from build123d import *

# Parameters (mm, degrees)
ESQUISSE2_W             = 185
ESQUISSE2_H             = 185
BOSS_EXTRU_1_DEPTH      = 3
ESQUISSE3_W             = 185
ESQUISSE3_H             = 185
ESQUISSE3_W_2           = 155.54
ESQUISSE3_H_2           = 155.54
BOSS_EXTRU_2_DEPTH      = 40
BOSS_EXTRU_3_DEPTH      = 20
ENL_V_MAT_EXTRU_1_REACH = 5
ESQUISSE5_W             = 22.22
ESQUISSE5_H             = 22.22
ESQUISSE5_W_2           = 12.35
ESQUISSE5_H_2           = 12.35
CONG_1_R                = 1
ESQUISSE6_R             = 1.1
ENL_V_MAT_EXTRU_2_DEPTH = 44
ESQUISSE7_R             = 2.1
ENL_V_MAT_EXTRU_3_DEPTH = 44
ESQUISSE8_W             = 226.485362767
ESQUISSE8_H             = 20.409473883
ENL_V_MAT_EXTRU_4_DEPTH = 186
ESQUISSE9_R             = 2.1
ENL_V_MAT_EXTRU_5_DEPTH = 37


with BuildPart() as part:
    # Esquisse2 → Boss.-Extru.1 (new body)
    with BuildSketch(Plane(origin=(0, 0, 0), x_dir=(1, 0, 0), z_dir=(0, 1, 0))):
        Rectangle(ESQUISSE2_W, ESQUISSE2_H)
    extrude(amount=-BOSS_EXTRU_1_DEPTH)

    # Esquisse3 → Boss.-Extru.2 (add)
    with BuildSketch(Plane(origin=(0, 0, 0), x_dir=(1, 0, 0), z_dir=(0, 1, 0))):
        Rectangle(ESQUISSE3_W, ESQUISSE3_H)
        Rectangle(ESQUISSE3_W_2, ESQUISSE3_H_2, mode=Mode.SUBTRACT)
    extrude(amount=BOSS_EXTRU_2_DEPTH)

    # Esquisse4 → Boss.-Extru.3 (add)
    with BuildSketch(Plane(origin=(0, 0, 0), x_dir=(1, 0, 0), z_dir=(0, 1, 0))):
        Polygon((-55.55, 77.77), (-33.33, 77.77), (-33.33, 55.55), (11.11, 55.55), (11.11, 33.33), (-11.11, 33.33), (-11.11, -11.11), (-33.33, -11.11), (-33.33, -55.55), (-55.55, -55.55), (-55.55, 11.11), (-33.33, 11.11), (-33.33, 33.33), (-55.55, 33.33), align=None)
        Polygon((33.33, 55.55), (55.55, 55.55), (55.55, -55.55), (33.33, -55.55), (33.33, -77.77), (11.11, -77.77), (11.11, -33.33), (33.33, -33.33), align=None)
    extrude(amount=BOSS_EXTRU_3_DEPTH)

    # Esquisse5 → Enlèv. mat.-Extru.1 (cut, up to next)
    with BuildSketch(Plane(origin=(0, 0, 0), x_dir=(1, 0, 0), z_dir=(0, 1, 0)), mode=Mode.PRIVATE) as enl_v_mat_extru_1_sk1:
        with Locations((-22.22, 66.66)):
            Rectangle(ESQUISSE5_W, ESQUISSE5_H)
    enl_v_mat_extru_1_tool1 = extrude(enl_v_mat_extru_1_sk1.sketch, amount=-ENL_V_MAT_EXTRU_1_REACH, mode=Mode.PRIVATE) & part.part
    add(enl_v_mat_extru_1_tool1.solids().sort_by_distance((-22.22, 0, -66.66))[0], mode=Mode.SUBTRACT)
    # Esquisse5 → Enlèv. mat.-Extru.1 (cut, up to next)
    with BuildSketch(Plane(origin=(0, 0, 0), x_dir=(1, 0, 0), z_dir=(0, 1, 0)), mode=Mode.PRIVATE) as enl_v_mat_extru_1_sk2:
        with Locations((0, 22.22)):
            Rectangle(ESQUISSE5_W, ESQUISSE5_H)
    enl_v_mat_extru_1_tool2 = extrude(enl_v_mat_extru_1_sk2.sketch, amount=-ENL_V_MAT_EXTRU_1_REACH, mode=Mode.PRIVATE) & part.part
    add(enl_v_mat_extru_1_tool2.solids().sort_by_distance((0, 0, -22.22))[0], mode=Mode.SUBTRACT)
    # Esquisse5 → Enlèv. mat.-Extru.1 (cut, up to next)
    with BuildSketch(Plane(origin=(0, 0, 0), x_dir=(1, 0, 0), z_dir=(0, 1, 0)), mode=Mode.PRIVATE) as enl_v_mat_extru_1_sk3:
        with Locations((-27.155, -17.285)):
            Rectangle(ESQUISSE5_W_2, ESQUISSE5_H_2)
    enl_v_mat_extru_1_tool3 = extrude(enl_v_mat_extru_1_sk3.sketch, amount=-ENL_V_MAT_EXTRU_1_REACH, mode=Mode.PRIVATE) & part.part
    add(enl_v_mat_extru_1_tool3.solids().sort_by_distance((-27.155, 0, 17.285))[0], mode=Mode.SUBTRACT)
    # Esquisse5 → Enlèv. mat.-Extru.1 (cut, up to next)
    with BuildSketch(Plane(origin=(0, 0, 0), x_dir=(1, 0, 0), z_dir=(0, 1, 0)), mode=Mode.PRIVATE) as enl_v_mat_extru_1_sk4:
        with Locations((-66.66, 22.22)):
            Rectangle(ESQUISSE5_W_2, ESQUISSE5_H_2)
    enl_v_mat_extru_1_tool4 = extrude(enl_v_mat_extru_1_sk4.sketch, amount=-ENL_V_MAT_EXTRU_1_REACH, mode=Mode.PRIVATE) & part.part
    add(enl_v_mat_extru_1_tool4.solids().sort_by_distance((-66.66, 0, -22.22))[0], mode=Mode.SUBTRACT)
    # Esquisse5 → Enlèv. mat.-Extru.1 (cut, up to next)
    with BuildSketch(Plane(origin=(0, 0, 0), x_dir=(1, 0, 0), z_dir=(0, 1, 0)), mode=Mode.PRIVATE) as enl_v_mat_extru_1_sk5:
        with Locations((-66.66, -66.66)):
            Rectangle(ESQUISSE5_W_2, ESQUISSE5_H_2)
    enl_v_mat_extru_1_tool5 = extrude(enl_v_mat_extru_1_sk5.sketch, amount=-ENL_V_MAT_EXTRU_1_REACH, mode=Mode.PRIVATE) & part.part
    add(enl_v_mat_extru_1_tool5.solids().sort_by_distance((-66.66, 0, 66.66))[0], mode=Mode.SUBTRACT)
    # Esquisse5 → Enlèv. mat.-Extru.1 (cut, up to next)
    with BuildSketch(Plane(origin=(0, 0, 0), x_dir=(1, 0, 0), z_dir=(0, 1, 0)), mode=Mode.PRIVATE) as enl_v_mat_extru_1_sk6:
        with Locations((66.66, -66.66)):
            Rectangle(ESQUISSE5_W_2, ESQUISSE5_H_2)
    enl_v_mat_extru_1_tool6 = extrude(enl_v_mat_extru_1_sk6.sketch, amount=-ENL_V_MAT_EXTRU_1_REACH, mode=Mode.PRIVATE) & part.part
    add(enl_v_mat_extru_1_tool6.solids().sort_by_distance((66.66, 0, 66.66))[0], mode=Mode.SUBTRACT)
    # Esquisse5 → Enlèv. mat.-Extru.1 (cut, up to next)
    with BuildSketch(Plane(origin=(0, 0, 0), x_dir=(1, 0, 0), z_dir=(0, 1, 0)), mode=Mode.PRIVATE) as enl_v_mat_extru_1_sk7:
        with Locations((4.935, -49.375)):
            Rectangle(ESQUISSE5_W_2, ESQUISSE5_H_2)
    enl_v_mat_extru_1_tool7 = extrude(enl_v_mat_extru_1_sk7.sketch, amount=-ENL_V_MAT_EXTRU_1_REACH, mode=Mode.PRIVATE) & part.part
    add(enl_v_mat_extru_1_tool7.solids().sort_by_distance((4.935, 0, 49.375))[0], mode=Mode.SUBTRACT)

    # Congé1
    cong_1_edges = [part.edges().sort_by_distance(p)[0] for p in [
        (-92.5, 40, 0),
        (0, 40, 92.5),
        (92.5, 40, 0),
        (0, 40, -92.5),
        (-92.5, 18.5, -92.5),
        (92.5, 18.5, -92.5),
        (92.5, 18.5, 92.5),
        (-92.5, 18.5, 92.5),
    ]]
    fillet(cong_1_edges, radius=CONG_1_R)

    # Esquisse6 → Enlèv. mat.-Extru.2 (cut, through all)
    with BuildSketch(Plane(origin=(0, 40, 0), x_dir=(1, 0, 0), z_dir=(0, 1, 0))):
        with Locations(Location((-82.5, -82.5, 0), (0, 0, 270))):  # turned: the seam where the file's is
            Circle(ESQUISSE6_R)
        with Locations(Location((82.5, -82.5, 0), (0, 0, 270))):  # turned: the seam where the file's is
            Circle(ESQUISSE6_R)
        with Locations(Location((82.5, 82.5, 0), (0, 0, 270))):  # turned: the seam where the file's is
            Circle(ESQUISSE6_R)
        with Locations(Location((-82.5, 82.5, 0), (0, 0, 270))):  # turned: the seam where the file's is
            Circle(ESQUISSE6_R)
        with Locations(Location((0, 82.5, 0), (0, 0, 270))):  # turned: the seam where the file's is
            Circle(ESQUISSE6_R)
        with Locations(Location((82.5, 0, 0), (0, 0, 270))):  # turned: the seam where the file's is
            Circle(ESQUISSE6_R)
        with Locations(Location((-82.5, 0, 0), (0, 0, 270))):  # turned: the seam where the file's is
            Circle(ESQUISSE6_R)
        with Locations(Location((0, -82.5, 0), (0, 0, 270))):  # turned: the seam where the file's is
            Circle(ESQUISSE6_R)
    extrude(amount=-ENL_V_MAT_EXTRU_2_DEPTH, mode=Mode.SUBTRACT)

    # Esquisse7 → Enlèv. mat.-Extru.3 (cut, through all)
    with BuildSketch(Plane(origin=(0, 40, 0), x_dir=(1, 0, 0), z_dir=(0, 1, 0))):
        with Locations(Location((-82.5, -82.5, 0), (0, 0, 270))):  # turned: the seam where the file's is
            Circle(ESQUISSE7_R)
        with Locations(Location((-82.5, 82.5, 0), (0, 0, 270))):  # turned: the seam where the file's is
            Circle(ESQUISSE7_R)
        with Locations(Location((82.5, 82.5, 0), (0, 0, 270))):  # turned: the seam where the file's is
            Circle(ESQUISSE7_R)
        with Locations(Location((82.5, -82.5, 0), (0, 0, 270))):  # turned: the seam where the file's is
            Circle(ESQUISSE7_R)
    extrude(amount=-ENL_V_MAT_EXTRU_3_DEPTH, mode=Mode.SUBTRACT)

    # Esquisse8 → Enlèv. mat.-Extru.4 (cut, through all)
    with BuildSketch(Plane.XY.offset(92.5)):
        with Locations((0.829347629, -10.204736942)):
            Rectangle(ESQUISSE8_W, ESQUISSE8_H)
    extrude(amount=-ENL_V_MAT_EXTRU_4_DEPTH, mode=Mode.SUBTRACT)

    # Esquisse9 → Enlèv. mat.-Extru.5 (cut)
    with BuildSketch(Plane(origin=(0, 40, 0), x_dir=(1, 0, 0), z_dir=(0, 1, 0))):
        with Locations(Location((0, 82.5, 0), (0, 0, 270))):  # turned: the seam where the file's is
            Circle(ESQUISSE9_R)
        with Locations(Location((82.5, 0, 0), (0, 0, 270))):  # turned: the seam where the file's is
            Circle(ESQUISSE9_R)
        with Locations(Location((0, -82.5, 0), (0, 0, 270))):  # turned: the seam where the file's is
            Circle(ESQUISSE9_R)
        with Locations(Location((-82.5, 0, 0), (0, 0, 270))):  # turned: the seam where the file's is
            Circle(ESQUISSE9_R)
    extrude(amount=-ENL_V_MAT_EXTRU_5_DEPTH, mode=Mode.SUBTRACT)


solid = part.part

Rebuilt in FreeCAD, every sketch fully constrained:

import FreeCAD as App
import Part
import Sketcher


def edges_at(feature, points):
    """Names of the edges that pass closest to the given points."""
    edges = feature.Shape.Edges
    near = lambda p: min(range(len(edges)), key=lambda i: edges[i].distToShape(Part.Vertex(*p))[0])
    return sorted({f"Edge{near(p) + 1}" for p in points})


def add_polygon(sketch, points):
    """Adds a closed chain of lines whose ends are joined by coincident constraints."""
    first, n = sketch.GeometryCount, len(points)
    for a, b in zip(points, points[1:] + points[:1]):
        sketch.addGeometry(Part.LineSegment(App.Vector(*a, 0), App.Vector(*b, 0)), False)
    for i in range(n):
        sketch.addConstraint(Sketcher.Constraint("Coincident", first + i, 2, first + (i + 1) % n, 1))

doc = App.newDocument("Part")
body = doc.addObject("PartDesign::Body", "Body")

sketch1 = doc.addObject("Sketcher::SketchObject", "Sketch")
body.addObject(sketch1)
sketch1.AttachmentSupport = (doc.XZ_Plane, [""])
sketch1.MapMode = "FlatFace"
add_polygon(sketch1, [(-92, -92), (-92, 92), (92, 92), (92, -92)])
sketch1.addConstraint([
    Sketcher.Constraint("Vertical", 0),
    Sketcher.Constraint("Horizontal", 1),
    Sketcher.Constraint("Vertical", 2),
    Sketcher.Constraint("Horizontal", 3),
    Sketcher.Constraint("Symmetric", 0, 2, 2, 2, -1, 1),
    Sketcher.Constraint("Equal", 3, 0),
    Sketcher.Constraint("DistanceX", 1, 1, 1, 2, 185.0),
])
pad1 = doc.addObject("PartDesign::Pad", "Pad")
body.addObject(pad1)
pad1.Profile = sketch1
pad1.Length = 3

sketch2 = doc.addObject("Sketcher::SketchObject", "Sketch001")
body.addObject(sketch2)
sketch2.AttachmentSupport = (doc.XZ_Plane, [""])
sketch2.MapMode = "FlatFace"
add_polygon(sketch2, [(-92, -92), (-92, 92), (92, 92), (92, -92)])
add_polygon(sketch2, [(78, 78), (-78, 78), (-78, -78), (78, -78)])
sketch2.addConstraint([
    Sketcher.Constraint("Vertical", 0),
    Sketcher.Constraint("Horizontal", 1),
    Sketcher.Constraint("Vertical", 2),
    Sketcher.Constraint("Horizontal", 3),
    Sketcher.Constraint("Horizontal", 4),
    Sketcher.Constraint("Vertical", 5),
    Sketcher.Constraint("Horizontal", 6),
    Sketcher.Constraint("Vertical", 7),
    Sketcher.Constraint("Symmetric", 0, 2, 2, 2, -1, 1),
    Sketcher.Constraint("Symmetric", 4, 2, 6, 2, -1, 1),
    Sketcher.Constraint("Equal", 3, 0),
    Sketcher.Constraint("Equal", 6, 5),
    Sketcher.Constraint("DistanceX", 1, 1, 1, 2, 185.0),
    Sketcher.Constraint("DistanceX", 4, 2, 4, 1, 155.54),
])
pad2 = doc.addObject("PartDesign::Pad", "Pad001")
body.addObject(pad2)
pad2.Profile = sketch2
pad2.Length = 40
pad2.Reversed = True

sketch3 = doc.addObject("Sketcher::SketchObject", "Sketch002")
body.addObject(sketch3)
sketch3.AttachmentSupport = (doc.XZ_Plane, [""])
sketch3.MapMode = "FlatFace"
add_polygon(sketch3, [(-33, -78), (-56, -78), (-56, -33), (-33, -33), (-33, -11), (-56, -11), (-56, 56), (-33, 56), (-33, 11), (-11, 11), (-11, -33), (11, -33), (11, -56), (-33, -56)])
add_polygon(sketch3, [(56, -56), (33, -56), (33, 33), (11, 33), (11, 78), (33, 78), (33, 56), (56, 56)])
sketch3.addConstraint([
    Sketcher.Constraint("Horizontal", 0),
    Sketcher.Constraint("Vertical", 1),
    Sketcher.Constraint("Horizontal", 2),
    Sketcher.Constraint("Vertical", 3),
    Sketcher.Constraint("Horizontal", 4),
    Sketcher.Constraint("Vertical", 5),
    Sketcher.Constraint("Horizontal", 6),
    Sketcher.Constraint("Vertical", 7),
    Sketcher.Constraint("Horizontal", 8),
    Sketcher.Constraint("Vertical", 9),
    Sketcher.Constraint("Horizontal", 10),
    Sketcher.Constraint("Vertical", 11),
    Sketcher.Constraint("Horizontal", 12),
    Sketcher.Constraint("Vertical", 13),
    Sketcher.Constraint("Horizontal", 14),
    Sketcher.Constraint("Vertical", 15),
    Sketcher.Constraint("Horizontal", 16),
    Sketcher.Constraint("Vertical", 17),
    Sketcher.Constraint("Horizontal", 18),
    Sketcher.Constraint("Vertical", 19),
    Sketcher.Constraint("Horizontal", 20),
    Sketcher.Constraint("Vertical", 21),
    Sketcher.Constraint("Symmetric", 6, 2, 14, 2, -1, 1),
    Sketcher.Constraint("Symmetric", 2, 2, 15, 2, -1, 1),
    Sketcher.Constraint("Symmetric", 9, 2, 16, 2, -1, 1),
    Sketcher.Constraint("Symmetric", 13, 2, 18, 2, -1, 1),
    Sketcher.Constraint("Symmetric", 12, 2, 14, 2, -2),
    Sketcher.Constraint("Symmetric", 5, 2, 20, 2, -2),
    Sketcher.Constraint("Vertical", 1, 2, 4, 2),
    Sketcher.Constraint("Vertical", 11, 2, 16, 2),
    Sketcher.Constraint("Equal", 6, 8),
    Sketcher.Constraint("Equal", 8, 10),
    Sketcher.Constraint("Equal", 12, 1),
    Sketcher.Constraint("Equal", 20, 3),
    Sketcher.Constraint("Equal", 1, 7),
    Sketcher.Constraint("Equal", 7, 9),
    Sketcher.Constraint("Equal", 3, 11),
    Sketcher.Constraint("DistanceY", 21, 2, 21, 1, 111.1),
])
pad3 = doc.addObject("PartDesign::Pad", "Pad002")
body.addObject(pad3)
pad3.Profile = sketch3
pad3.Length = 20
pad3.Reversed = True

sketch4 = doc.addObject("Sketcher::SketchObject", "Sketch003")
body.addObject(sketch4)
sketch4.AttachmentSupport = (doc.XZ_Plane, [""])
sketch4.MapMode = "FlatFace"
add_polygon(sketch4, [(-33, -78), (-33, -56), (-11, -56), (-11, -78)])
sketch4.addConstraint([
    Sketcher.Constraint("Vertical", 0),
    Sketcher.Constraint("Horizontal", 1),
    Sketcher.Constraint("Vertical", 2),
    Sketcher.Constraint("Horizontal", 3),
    Sketcher.Constraint("Equal", 3, 0),
    Sketcher.Constraint("DistanceX", 1, 1, 1, 2, 22.22),
    Sketcher.Constraint("DistanceX", 0, 2, -1, 1, 33.33),
    Sketcher.Constraint("DistanceY", 0, 2, -1, 1, 55.55),
])
pocket1 = doc.addObject("PartDesign::Pocket", "Pocket")
body.addObject(pocket1)
pocket1.Profile = sketch4
pocket1.Type = "UpToFirst"
pocket1.Reversed = True

sketch5 = doc.addObject("Sketcher::SketchObject", "Sketch004")
body.addObject(sketch5)
sketch5.AttachmentSupport = (doc.XZ_Plane, [""])
sketch5.MapMode = "FlatFace"
add_polygon(sketch5, [(-11, -33), (-11, -11), (11, -11), (11, -33)])
sketch5.addConstraint([
    Sketcher.Constraint("Vertical", 0),
    Sketcher.Constraint("Horizontal", 1),
    Sketcher.Constraint("Vertical", 2),
    Sketcher.Constraint("Horizontal", 3),
    Sketcher.Constraint("Equal", 3, 0),
    Sketcher.Constraint("DistanceX", 1, 1, 1, 2, 22.22),
    Sketcher.Constraint("DistanceX", 0, 2, -1, 1, 11.11),
    Sketcher.Constraint("DistanceY", 0, 2, -1, 1, 11.11),
])
pocket2 = doc.addObject("PartDesign::Pocket", "Pocket001")
body.addObject(pocket2)
pocket2.Profile = sketch5
pocket2.Type = "UpToFirst"
pocket2.Reversed = True

sketch6 = doc.addObject("Sketcher::SketchObject", "Sketch005")
body.addObject(sketch6)
sketch6.AttachmentSupport = (doc.XZ_Plane, [""])
sketch6.MapMode = "FlatFace"
add_polygon(sketch6, [(-33, 11), (-33, 23), (-21, 23), (-21, 11)])
sketch6.addConstraint([
    Sketcher.Constraint("Vertical", 0),
    Sketcher.Constraint("Horizontal", 1),
    Sketcher.Constraint("Vertical", 2),
    Sketcher.Constraint("Horizontal", 3),
    Sketcher.Constraint("Equal", 3, 0),
    Sketcher.Constraint("DistanceX", 1, 1, 1, 2, 12.35),
    Sketcher.Constraint("DistanceX", 0, 2, -1, 1, 33.33),
    Sketcher.Constraint("DistanceY", -1, 1, 0, 2, 23.46),
])
pocket3 = doc.addObject("PartDesign::Pocket", "Pocket002")
body.addObject(pocket3)
pocket3.Profile = sketch6
pocket3.Type = "UpToFirst"
pocket3.Reversed = True

sketch7 = doc.addObject("Sketcher::SketchObject", "Sketch006")
body.addObject(sketch7)
sketch7.AttachmentSupport = (doc.XZ_Plane, [""])
sketch7.MapMode = "FlatFace"
add_polygon(sketch7, [(-73, -28), (-73, -16), (-60, -16), (-60, -28)])
sketch7.addConstraint([
    Sketcher.Constraint("Vertical", 0),
    Sketcher.Constraint("Horizontal", 1),
    Sketcher.Constraint("Vertical", 2),
    Sketcher.Constraint("Horizontal", 3),
    Sketcher.Constraint("Equal", 3, 0),
    Sketcher.Constraint("DistanceX", 1, 1, 1, 2, 12.35),
    Sketcher.Constraint("DistanceX", 0, 2, -1, 1, 72.835),
    Sketcher.Constraint("DistanceY", 0, 2, -1, 1, 16.045),
])
pocket4 = doc.addObject("PartDesign::Pocket", "Pocket003")
body.addObject(pocket4)
pocket4.Profile = sketch7
pocket4.Type = "UpToFirst"
pocket4.Reversed = True

sketch8 = doc.addObject("Sketcher::SketchObject", "Sketch007")
body.addObject(sketch8)
sketch8.AttachmentSupport = (doc.XZ_Plane, [""])
sketch8.MapMode = "FlatFace"
add_polygon(sketch8, [(-73, 60), (-73, 73), (-60, 73), (-60, 60)])
sketch8.addConstraint([
    Sketcher.Constraint("Vertical", 0),
    Sketcher.Constraint("Horizontal", 1),
    Sketcher.Constraint("Vertical", 2),
    Sketcher.Constraint("Horizontal", 3),
    Sketcher.Constraint("Equal", 3, 0),
    Sketcher.Constraint("DistanceX", 1, 1, 1, 2, 12.35),
    Sketcher.Constraint("DistanceX", 0, 2, -1, 1, 72.835),
    Sketcher.Constraint("DistanceY", -1, 1, 0, 2, 72.835),
])
pocket5 = doc.addObject("PartDesign::Pocket", "Pocket004")
body.addObject(pocket5)
pocket5.Profile = sketch8
pocket5.Type = "UpToFirst"
pocket5.Reversed = True

sketch9 = doc.addObject("Sketcher::SketchObject", "Sketch008")
body.addObject(sketch9)
sketch9.AttachmentSupport = (doc.XZ_Plane, [""])
sketch9.MapMode = "FlatFace"
add_polygon(sketch9, [(60, 60), (60, 73), (73, 73), (73, 60)])
sketch9.addConstraint([
    Sketcher.Constraint("Vertical", 0),
    Sketcher.Constraint("Horizontal", 1),
    Sketcher.Constraint("Vertical", 2),
    Sketcher.Constraint("Horizontal", 3),
    Sketcher.Constraint("Equal", 3, 0),
    Sketcher.Constraint("DistanceX", 1, 1, 1, 2, 12.35),
    Sketcher.Constraint("DistanceX", -1, 1, 0, 2, 60.485),
    Sketcher.Constraint("DistanceY", -1, 1, 0, 2, 72.835),
])
pocket6 = doc.addObject("PartDesign::Pocket", "Pocket005")
body.addObject(pocket6)
pocket6.Profile = sketch9
pocket6.Type = "UpToFirst"
pocket6.Reversed = True

sketch10 = doc.addObject("Sketcher::SketchObject", "Sketch009")
body.addObject(sketch10)
sketch10.AttachmentSupport = (doc.XZ_Plane, [""])
sketch10.MapMode = "FlatFace"
add_polygon(sketch10, [(-1, 43), (-1, 56), (11, 56), (11, 43)])
sketch10.addConstraint([
    Sketcher.Constraint("Vertical", 0),
    Sketcher.Constraint("Horizontal", 1),
    Sketcher.Constraint("Vertical", 2),
    Sketcher.Constraint("Horizontal", 3),
    Sketcher.Constraint("Equal", 3, 0),
    Sketcher.Constraint("DistanceX", 1, 1, 1, 2, 12.35),
    Sketcher.Constraint("DistanceY", -1, 1, 2, 2, 43.2),
    Sketcher.Constraint("DistanceX", 0, 2, -1, 1, 1.24),
])
pocket7 = doc.addObject("PartDesign::Pocket", "Pocket006")
body.addObject(pocket7)
pocket7.Profile = sketch10
pocket7.Type = "UpToFirst"
pocket7.Reversed = True
doc.recompute()

fillet = doc.addObject("PartDesign::Fillet", "Fillet")
body.addObject(fillet)
fillet.Base = (pocket7, edges_at(pocket7, [
    (-92.5, 40, 0),
    (0, 40, 92.5),
    (92.5, 40, 0),
    (0, 40, -92.5),
    (-92.5, 18.5, -92.5),
    (92.5, 18.5, -92.5),
    (92.5, 18.5, 92.5),
    (-92.5, 18.5, 92.5),
]))
fillet.Radius = 1

sketch11 = doc.addObject("Sketcher::SketchObject", "Sketch010")
body.addObject(sketch11)
sketch11.AttachmentSupport = (doc.XZ_Plane, [""])
sketch11.MapMode = "FlatFace"
sketch11.AttachmentOffset = App.Placement(App.Vector(0, 0, -40), App.Rotation())
sketch11.addGeometry([
    Part.Circle(App.Vector(-82.5, 82.5, 0), App.Vector(0, 0, 1), 1.1),
    Part.Circle(App.Vector(82.5, 82.5, 0), App.Vector(0, 0, 1), 1.1),
    Part.Circle(App.Vector(82.5, -82.5, 0), App.Vector(0, 0, 1), 1.1),
    Part.Circle(App.Vector(-82.5, -82.5, 0), App.Vector(0, 0, 1), 1.1),
    Part.Circle(App.Vector(0, -82.5, 0), App.Vector(0, 0, 1), 1.1),
    Part.Circle(App.Vector(82.5, 0, 0), App.Vector(0, 0, 1), 1.1),
    Part.Circle(App.Vector(-82.5, 0, 0), App.Vector(0, 0, 1), 1.1),
    Part.Circle(App.Vector(0, 82.5, 0), App.Vector(0, 0, 1), 1.1),
], False)
sketch11.addConstraint([
    Sketcher.Constraint("Equal", 0, 1),
    Sketcher.Constraint("Equal", 1, 2),
    Sketcher.Constraint("Equal", 2, 3),
    Sketcher.Constraint("Equal", 3, 4),
    Sketcher.Constraint("Equal", 4, 5),
    Sketcher.Constraint("Equal", 5, 6),
    Sketcher.Constraint("Equal", 6, 7),
    Sketcher.Constraint("Symmetric", 0, 3, 2, 3, -1, 1),
    Sketcher.Constraint("Symmetric", 1, 3, 3, 3, -1, 1),
    Sketcher.Constraint("Symmetric", 5, 3, 6, 3, -1, 1),
    Sketcher.Constraint("Symmetric", 4, 3, 7, 3, -1, 1),
    Sketcher.Constraint("Symmetric", 0, 3, 1, 3, -2),
    Sketcher.Constraint("PointOnObject", 4, 3, -2),
    Sketcher.Constraint("PointOnObject", 5, 3, -1),
    Sketcher.Constraint("Horizontal", 3, 3, 4, 3),
    Sketcher.Constraint("Vertical", 2, 3, 5, 3),
    Sketcher.Constraint("Diameter", 0, 2.2),
    Sketcher.Constraint("DistanceX", 0, 3, 1, 3, 165.0),
    Sketcher.Constraint("DistanceY", 2, 3, 1, 3, 165.0),
])
pocket8 = doc.addObject("PartDesign::Pocket", "Pocket007")
body.addObject(pocket8)
pocket8.Profile = sketch11
pocket8.Type = "ThroughAll"
pocket8.Reversed = True

sketch12 = doc.addObject("Sketcher::SketchObject", "Sketch011")
body.addObject(sketch12)
sketch12.AttachmentSupport = (doc.XZ_Plane, [""])
sketch12.MapMode = "FlatFace"
sketch12.AttachmentOffset = App.Placement(App.Vector(0, 0, -40), App.Rotation())
sketch12.addGeometry([
    Part.Circle(App.Vector(-82.5, 82.5, 0), App.Vector(0, 0, 1), 2.1),
    Part.Circle(App.Vector(-82.5, -82.5, 0), App.Vector(0, 0, 1), 2.1),
    Part.Circle(App.Vector(82.5, -82.5, 0), App.Vector(0, 0, 1), 2.1),
    Part.Circle(App.Vector(82.5, 82.5, 0), App.Vector(0, 0, 1), 2.1),
], False)
sketch12.addConstraint([
    Sketcher.Constraint("Equal", 0, 1),
    Sketcher.Constraint("Equal", 1, 2),
    Sketcher.Constraint("Equal", 2, 3),
    Sketcher.Constraint("Symmetric", 0, 3, 2, 3, -1, 1),
    Sketcher.Constraint("Symmetric", 1, 3, 3, 3, -1, 1),
    Sketcher.Constraint("Symmetric", 1, 3, 2, 3, -2),
    Sketcher.Constraint("Diameter", 0, 4.2),
    Sketcher.Constraint("DistanceY", 1, 3, 0, 3, 165.0),
    Sketcher.Constraint("DistanceX", 1, 3, 2, 3, 165.0),
])
pocket9 = doc.addObject("PartDesign::Pocket", "Pocket008")
body.addObject(pocket9)
pocket9.Profile = sketch12
pocket9.Type = "ThroughAll"
pocket9.Reversed = True

sketch13 = doc.addObject("Sketcher::SketchObject", "Sketch012")
body.addObject(sketch13)
sketch13.AttachmentSupport = (doc.XY_Plane, [""])
sketch13.MapMode = "FlatFace"
sketch13.AttachmentOffset = App.Placement(App.Vector(0, 0, 92.5), App.Rotation())
add_polygon(sketch13, [(-112, 0), (-112, -20), (114, -20), (114, 0)])
sketch13.addConstraint([
    Sketcher.Constraint("Vertical", 0),
    Sketcher.Constraint("Horizontal", 1),
    Sketcher.Constraint("Vertical", 2),
    Sketcher.Constraint("Horizontal", 3),
    Sketcher.Constraint("PointOnObject", 2, 2, -1),
    Sketcher.Constraint("DistanceX", 1, 1, 1, 2, 226.485363),
    Sketcher.Constraint("DistanceY", 0, 2, 0, 1, 20.409474),
    Sketcher.Constraint("DistanceX", -1, 1, 1, 2, 114.072029),
])
pocket10 = doc.addObject("PartDesign::Pocket", "Pocket009")
body.addObject(pocket10)
pocket10.Profile = sketch13
pocket10.Type = "ThroughAll"

sketch14 = doc.addObject("Sketcher::SketchObject", "Sketch013")
body.addObject(sketch14)
sketch14.AttachmentSupport = (doc.XZ_Plane, [""])
sketch14.MapMode = "FlatFace"
sketch14.AttachmentOffset = App.Placement(App.Vector(0, 0, -40), App.Rotation())
sketch14.addGeometry([
    Part.Circle(App.Vector(0, -82.5, 0), App.Vector(0, 0, 1), 2.1),
    Part.Circle(App.Vector(82.5, 0, 0), App.Vector(0, 0, 1), 2.1),
    Part.Circle(App.Vector(0, 82.5, 0), App.Vector(0, 0, 1), 2.1),
    Part.Circle(App.Vector(-82.5, 0, 0), App.Vector(0, 0, 1), 2.1),
], False)
sketch14.addConstraint([
    Sketcher.Constraint("Equal", 0, 1),
    Sketcher.Constraint("Equal", 1, 2),
    Sketcher.Constraint("Equal", 2, 3),
    Sketcher.Constraint("Symmetric", 0, 3, 2, 3, -1, 1),
    Sketcher.Constraint("Symmetric", 1, 3, 3, 3, -1, 1),
    Sketcher.Constraint("PointOnObject", 0, 3, -2),
    Sketcher.Constraint("PointOnObject", 1, 3, -1),
    Sketcher.Constraint("Diameter", 0, 4.2),
    Sketcher.Constraint("DistanceY", 0, 3, 2, 3, 165.0),
    Sketcher.Constraint("DistanceX", 3, 3, 1, 3, 165.0),
])
pocket11 = doc.addObject("PartDesign::Pocket", "Pocket010")
body.addObject(pocket11)
pocket11.Profile = sketch14
pocket11.Length = 37
pocket11.Reversed = True

doc.recompute()
